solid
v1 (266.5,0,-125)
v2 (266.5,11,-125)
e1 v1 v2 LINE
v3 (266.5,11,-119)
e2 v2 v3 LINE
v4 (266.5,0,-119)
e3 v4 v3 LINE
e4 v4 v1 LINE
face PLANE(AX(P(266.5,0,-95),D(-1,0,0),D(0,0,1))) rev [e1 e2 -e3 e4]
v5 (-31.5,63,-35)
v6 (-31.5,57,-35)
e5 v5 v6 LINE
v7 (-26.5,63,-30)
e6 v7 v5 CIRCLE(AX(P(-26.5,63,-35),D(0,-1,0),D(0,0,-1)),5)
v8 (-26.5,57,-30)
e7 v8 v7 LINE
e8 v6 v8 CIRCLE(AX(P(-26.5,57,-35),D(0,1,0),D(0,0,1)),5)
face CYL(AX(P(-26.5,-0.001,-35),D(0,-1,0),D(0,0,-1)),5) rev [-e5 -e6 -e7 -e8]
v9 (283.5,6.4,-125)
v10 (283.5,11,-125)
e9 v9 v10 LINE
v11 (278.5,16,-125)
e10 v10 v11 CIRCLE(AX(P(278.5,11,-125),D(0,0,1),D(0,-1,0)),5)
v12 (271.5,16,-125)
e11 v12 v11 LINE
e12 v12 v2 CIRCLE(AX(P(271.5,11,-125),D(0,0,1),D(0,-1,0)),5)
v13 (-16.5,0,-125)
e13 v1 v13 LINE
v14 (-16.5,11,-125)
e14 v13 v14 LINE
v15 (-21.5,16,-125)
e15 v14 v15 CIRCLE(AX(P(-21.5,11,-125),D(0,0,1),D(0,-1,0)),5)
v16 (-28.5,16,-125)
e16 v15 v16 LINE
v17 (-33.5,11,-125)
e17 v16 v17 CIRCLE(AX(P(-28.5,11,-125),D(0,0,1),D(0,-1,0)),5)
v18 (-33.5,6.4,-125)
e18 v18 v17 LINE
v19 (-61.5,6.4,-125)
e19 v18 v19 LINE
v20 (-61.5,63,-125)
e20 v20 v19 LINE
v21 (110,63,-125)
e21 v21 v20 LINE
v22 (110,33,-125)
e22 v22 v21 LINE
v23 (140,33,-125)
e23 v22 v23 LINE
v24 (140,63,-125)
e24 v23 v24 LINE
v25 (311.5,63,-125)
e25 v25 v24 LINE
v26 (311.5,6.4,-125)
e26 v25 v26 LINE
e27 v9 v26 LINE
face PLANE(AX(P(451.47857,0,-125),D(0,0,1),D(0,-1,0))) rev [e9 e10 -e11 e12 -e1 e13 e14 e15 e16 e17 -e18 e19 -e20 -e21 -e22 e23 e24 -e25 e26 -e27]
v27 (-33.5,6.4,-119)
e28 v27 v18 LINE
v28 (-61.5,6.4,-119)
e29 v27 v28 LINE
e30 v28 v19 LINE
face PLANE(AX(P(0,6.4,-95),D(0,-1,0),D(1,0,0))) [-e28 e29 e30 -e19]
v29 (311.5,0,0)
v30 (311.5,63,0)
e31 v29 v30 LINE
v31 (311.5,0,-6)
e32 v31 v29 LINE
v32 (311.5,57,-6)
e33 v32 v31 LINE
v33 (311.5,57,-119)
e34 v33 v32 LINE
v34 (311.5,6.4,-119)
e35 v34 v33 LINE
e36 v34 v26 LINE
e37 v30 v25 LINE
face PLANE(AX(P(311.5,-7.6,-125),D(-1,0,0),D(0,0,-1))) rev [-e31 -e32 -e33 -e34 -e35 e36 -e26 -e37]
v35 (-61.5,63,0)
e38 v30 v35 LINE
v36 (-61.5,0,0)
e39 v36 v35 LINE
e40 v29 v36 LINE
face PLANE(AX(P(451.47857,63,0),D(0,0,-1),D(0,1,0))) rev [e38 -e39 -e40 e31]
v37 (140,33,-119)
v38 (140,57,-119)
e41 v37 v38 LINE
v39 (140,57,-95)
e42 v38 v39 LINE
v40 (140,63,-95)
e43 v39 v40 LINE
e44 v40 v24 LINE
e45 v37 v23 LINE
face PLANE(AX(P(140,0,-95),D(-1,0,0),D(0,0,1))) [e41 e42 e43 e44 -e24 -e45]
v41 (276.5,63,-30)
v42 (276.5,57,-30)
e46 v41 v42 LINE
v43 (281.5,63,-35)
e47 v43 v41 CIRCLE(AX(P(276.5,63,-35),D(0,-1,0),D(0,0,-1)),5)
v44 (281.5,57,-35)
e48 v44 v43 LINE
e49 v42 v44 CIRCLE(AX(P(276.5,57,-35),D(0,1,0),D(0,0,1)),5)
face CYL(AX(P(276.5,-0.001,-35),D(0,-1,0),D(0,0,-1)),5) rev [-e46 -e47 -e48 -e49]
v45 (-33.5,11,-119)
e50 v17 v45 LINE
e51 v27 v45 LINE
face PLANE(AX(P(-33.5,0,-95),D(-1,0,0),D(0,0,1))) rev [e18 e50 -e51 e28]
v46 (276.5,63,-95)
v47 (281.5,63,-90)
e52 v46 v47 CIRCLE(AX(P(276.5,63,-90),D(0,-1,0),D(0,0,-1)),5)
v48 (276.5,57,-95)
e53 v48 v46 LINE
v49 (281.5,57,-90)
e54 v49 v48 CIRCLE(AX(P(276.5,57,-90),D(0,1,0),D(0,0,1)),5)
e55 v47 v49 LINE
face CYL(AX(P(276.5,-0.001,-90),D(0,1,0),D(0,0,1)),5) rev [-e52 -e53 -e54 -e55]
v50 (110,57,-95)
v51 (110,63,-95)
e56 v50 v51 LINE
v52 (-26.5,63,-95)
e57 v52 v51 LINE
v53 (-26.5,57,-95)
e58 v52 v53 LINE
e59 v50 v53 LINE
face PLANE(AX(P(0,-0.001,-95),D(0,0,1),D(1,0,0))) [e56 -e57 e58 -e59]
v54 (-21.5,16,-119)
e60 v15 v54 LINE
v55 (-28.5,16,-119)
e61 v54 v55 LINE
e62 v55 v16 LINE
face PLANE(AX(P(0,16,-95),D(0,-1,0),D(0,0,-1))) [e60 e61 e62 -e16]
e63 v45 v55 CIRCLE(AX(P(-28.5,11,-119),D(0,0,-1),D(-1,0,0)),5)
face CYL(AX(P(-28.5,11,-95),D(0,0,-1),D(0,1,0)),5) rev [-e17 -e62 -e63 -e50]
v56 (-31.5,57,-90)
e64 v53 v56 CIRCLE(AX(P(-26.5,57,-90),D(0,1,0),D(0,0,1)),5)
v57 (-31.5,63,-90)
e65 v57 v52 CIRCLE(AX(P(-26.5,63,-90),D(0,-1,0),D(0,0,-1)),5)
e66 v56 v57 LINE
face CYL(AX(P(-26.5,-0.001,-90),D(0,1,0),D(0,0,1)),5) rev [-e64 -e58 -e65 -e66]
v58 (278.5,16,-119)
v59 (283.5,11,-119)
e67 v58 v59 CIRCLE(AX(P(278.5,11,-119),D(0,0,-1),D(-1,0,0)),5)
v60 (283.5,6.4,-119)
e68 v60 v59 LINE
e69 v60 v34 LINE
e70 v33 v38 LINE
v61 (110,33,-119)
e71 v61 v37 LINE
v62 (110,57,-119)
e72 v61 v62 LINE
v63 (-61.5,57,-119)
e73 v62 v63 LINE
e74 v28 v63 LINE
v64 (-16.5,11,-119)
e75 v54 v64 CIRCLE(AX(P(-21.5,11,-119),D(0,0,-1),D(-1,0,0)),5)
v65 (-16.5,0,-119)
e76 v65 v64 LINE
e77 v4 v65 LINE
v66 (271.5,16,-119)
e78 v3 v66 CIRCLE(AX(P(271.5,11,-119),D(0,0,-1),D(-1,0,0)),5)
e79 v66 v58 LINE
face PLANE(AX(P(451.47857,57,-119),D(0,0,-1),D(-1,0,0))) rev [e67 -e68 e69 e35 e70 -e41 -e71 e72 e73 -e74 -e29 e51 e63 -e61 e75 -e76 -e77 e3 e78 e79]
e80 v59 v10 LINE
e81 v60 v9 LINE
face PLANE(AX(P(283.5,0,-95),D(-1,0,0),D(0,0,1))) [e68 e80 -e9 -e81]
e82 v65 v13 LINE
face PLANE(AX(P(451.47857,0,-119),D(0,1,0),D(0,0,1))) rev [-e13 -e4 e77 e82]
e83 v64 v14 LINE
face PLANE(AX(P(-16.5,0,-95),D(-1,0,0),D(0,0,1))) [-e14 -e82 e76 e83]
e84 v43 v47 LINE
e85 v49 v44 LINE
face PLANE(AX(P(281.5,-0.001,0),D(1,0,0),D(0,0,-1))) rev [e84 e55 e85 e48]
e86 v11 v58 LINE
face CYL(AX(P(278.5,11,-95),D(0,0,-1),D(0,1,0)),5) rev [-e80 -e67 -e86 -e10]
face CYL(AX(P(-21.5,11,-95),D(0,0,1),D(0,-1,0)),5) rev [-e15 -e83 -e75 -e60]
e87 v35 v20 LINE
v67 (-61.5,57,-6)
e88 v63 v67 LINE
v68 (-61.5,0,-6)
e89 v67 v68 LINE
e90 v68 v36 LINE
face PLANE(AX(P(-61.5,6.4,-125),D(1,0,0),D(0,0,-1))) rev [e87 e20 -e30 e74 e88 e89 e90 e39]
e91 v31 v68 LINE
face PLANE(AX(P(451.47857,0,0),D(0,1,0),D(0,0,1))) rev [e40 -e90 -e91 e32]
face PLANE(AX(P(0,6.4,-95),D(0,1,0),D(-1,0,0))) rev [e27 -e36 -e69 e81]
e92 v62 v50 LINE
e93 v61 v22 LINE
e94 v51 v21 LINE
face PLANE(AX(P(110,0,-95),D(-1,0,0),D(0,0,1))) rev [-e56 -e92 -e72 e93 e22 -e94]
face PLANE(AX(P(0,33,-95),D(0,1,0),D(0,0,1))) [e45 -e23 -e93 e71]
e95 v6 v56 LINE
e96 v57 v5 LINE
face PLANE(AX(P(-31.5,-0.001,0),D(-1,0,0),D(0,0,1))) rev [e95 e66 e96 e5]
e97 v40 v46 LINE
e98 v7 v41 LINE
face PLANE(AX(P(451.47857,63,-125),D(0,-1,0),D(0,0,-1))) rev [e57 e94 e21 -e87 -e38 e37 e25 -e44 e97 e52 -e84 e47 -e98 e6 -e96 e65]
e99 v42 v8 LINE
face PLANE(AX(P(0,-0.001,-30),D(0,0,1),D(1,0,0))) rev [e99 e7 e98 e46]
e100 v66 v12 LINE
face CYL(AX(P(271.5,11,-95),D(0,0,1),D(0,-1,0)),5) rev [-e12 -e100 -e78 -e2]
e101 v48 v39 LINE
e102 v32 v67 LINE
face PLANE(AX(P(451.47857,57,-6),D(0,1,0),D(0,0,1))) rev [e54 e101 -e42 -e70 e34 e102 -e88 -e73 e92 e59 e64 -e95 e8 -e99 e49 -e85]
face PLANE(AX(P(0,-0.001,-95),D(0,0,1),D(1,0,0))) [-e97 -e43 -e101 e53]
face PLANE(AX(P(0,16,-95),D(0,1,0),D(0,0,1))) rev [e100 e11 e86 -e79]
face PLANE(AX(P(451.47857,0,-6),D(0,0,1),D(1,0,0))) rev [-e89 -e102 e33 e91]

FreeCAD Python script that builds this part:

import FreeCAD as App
import Part
import Sketcher

V = App.Vector


def edges_at(feature, points):
    """Names of the edges that pass closest to the given points."""
    edges = feature.Shape.Edges
    near = lambda p: min(range(len(edges)), key=lambda i: edges[i].distToShape(Part.Vertex(*p))[0])
    return sorted({f"Edge{near(p) + 1}" for p in points})


def add_polygon(sketch, points):
    """Adds a closed chain of lines whose ends are joined by coincident constraints."""
    first, n = sketch.GeometryCount, len(points)
    for a, b in zip(points, points[1:] + points[:1]):
        sketch.addGeometry(Part.LineSegment(App.Vector(*a, 0), App.Vector(*b, 0)), False)
    for i in range(n):
        sketch.addConstraint(Sketcher.Constraint("Coincident", first + i, 2, first + (i + 1) % n, 1))

doc = App.newDocument("Part")
body = doc.addObject("PartDesign::Body", "Body")

# Sketch on YZ plane
sketch1 = doc.addObject("Sketcher::SketchObject", "Sketch")
body.addObject(sketch1)
sketch1.AttachmentSupport = (doc.YZ_Plane, [""])
sketch1.MapMode = "FlatFace"
add_polygon(sketch1, [(0, 0), (0, -6), (57, -6), (57, -119), (0, -119), (0, -125), (63, -125), (63, 0)])  # lines 0-7
sketch1.addConstraint(Sketcher.Constraint("Vertical", 0))
sketch1.addConstraint(Sketcher.Constraint("Horizontal", 1))
sketch1.addConstraint(Sketcher.Constraint("Vertical", 2))
sketch1.addConstraint(Sketcher.Constraint("Horizontal", 3))
sketch1.addConstraint(Sketcher.Constraint("Vertical", 4))
sketch1.addConstraint(Sketcher.Constraint("Horizontal", 5))
sketch1.addConstraint(Sketcher.Constraint("Vertical", 6))
sketch1.addConstraint(Sketcher.Constraint("Horizontal", 7))
sketch1.addConstraint(Sketcher.Constraint("Coincident", 7, 2, -1, 1))
sketch1.addConstraint(Sketcher.Constraint("PointOnObject", 3, 2, -2))
sketch1.addConstraint(Sketcher.Constraint("Equal", 0, 4))
sketch1.addConstraint(Sketcher.Constraint("DistanceX", 1, 1, 1, 2, 57.0))
sketch1.addConstraint(Sketcher.Constraint("DistanceX", 5, 1, 5, 2, 63.0))
sketch1.addConstraint(Sketcher.Constraint("DistanceY", 0, 2, 0, 1, 6.0))
sketch1.addConstraint(Sketcher.Constraint("DistanceY", 2, 2, 2, 1, 113.0))
pad1 = doc.addObject("PartDesign::Pad", "Pad")
body.addObject(pad1)
pad1.Profile = sketch1
pad1.Type = "TwoLengths"
pad1.Length = 311.5
pad1.Length2 = 61.5

# Sketch on XY plane
sketch2 = doc.addObject("Sketcher::SketchObject", "Sketch001")
body.addObject(sketch2)
sketch2.AttachmentSupport = (doc.XY_Plane, [""])
sketch2.MapMode = "FlatFace"
sketch2.AttachmentOffset = App.Placement(V(0, 0, -125), App.Rotation())
add_polygon(sketch2, [(312, 0), (266, 0), (266, 16), (284, 16), (284, 6), (312, 6)])  # lines 0-5
add_polygon(sketch2, [(140, 33), (110, 33), (110, 63), (140, 63)])  # lines 6-9
add_polygon(sketch2, [(-16, 16), (-16, 0), (-62, 0), (-62, 6), (-34, 6), (-34, 16)])  # lines 10-15
sketch2.addConstraint(Sketcher.Constraint("Horizontal", 0))
sketch2.addConstraint(Sketcher.Constraint("Vertical", 1))
sketch2.addConstraint(Sketcher.Constraint("Horizontal", 2))
sketch2.addConstraint(Sketcher.Constraint("Vertical", 3))
sketch2.addConstraint(Sketcher.Constraint("Horizontal", 4))
sketch2.addConstraint(Sketcher.Constraint("Vertical", 5))
sketch2.addConstraint(Sketcher.Constraint("Horizontal", 6))
sketch2.addConstraint(Sketcher.Constraint("Vertical", 7))
sketch2.addConstraint(Sketcher.Constraint("Horizontal", 8))
sketch2.addConstraint(Sketcher.Constraint("Vertical", 9))
sketch2.addConstraint(Sketcher.Constraint("Vertical", 10))
sketch2.addConstraint(Sketcher.Constraint("Horizontal", 11))
sketch2.addConstraint(Sketcher.Constraint("Vertical", 12))
sketch2.addConstraint(Sketcher.Constraint("Horizontal", 13))
sketch2.addConstraint(Sketcher.Constraint("Vertical", 14))
sketch2.addConstraint(Sketcher.Constraint("Horizontal", 15))
sketch2.addConstraint(Sketcher.Constraint("PointOnObject", 0, 2, -1))
sketch2.addConstraint(Sketcher.Constraint("PointOnObject", 10, 2, -1))
sketch2.addConstraint(Sketcher.Constraint("Horizontal", 4, 2, 12, 2))
sketch2.addConstraint(Sketcher.Constraint("Horizontal", 2, 2, 14, 2))
sketch2.addConstraint(Sketcher.Constraint("Equal", 0, 11))
sketch2.addConstraint(Sketcher.Constraint("Equal", 4, 13))
sketch2.addConstraint(Sketcher.Constraint("Equal", 8, 7))
sketch2.addConstraint(Sketcher.Constraint("DistanceX", 0, 2, 0, 1, 45.0))
sketch2.addConstraint(Sketcher.Constraint("DistanceX", 2, 1, 2, 2, 17.0))
sketch2.addConstraint(Sketcher.Constraint("DistanceX", 6, 2, 6, 1, 30.0))
sketch2.addConstraint(Sketcher.Constraint("DistanceY", 1, 1, 1, 2, 16.0))
sketch2.addConstraint(Sketcher.Constraint("DistanceY", 3, 2, 3, 1, 9.6))
sketch2.addConstraint(Sketcher.Constraint("DistanceX", -1, 1, 6, 2, 110.0))
sketch2.addConstraint(Sketcher.Constraint("DistanceY", -1, 1, 6, 2, 33.0))
sketch2.addConstraint(Sketcher.Constraint("DistanceX", 10, 2, 0, 2, 283.0))
sketch2.addConstraint(Sketcher.Constraint("DistanceX", -1, 1, 0, 2, 266.5))
pocket1 = doc.addObject("PartDesign::Pocket", "Pocket")
body.addObject(pocket1)
pocket1.Profile = sketch2
pocket1.Length = 30
pocket1.Reversed = True

# Sketch on XZ plane
sketch3 = doc.addObject("Sketcher::SketchObject", "Sketch002")
body.addObject(sketch3)
sketch3.AttachmentSupport = (doc.XZ_Plane, [""])
sketch3.MapMode = "FlatFace"
sketch3.AttachmentOffset = App.Placement(V(0, 0, -63), App.Rotation())
add_polygon(sketch3, [(-32, -95), (-32, -30), (282, -30), (282, -95)])  # lines 0-3
sketch3.addConstraint(Sketcher.Constraint("Vertical", 0))
sketch3.addConstraint(Sketcher.Constraint("Horizontal", 1))
sketch3.addConstraint(Sketcher.Constraint("Vertical", 2))
sketch3.addConstraint(Sketcher.Constraint("Horizontal", 3))
sketch3.addConstraint(Sketcher.Constraint("DistanceX", 1, 1, 1, 2, 313.0))
sketch3.addConstraint(Sketcher.Constraint("DistanceY", 0, 1, 0, 2, 65.0))
sketch3.addConstraint(Sketcher.Constraint("DistanceY", 0, 2, -1, 1, 30.0))
sketch3.addConstraint(Sketcher.Constraint("DistanceX", 0, 2, -1, 1, 31.5))
pocket2 = doc.addObject("PartDesign::Pocket", "Pocket001")
body.addObject(pocket2)
pocket2.Profile = sketch3
pocket2.Type = "UpToFirst"
pocket2.Reversed = True
doc.recompute()

fillet = doc.addObject("PartDesign::Fillet", "Fillet")
body.addObject(fillet)
fillet.Base = (pocket2, edges_at(pocket2, [
    (-16.5, 16, -122),
    (-33.5, 16, -122),
    (-31.5, 60, -95),
    (281.5, 60, -95),
    (281.5, 60, -30),
    (-31.5, 60, -30),
    (283.5, 16, -122),
    (266.5, 16, -122),
]))
fillet.Radius = 5

doc.recompute()
